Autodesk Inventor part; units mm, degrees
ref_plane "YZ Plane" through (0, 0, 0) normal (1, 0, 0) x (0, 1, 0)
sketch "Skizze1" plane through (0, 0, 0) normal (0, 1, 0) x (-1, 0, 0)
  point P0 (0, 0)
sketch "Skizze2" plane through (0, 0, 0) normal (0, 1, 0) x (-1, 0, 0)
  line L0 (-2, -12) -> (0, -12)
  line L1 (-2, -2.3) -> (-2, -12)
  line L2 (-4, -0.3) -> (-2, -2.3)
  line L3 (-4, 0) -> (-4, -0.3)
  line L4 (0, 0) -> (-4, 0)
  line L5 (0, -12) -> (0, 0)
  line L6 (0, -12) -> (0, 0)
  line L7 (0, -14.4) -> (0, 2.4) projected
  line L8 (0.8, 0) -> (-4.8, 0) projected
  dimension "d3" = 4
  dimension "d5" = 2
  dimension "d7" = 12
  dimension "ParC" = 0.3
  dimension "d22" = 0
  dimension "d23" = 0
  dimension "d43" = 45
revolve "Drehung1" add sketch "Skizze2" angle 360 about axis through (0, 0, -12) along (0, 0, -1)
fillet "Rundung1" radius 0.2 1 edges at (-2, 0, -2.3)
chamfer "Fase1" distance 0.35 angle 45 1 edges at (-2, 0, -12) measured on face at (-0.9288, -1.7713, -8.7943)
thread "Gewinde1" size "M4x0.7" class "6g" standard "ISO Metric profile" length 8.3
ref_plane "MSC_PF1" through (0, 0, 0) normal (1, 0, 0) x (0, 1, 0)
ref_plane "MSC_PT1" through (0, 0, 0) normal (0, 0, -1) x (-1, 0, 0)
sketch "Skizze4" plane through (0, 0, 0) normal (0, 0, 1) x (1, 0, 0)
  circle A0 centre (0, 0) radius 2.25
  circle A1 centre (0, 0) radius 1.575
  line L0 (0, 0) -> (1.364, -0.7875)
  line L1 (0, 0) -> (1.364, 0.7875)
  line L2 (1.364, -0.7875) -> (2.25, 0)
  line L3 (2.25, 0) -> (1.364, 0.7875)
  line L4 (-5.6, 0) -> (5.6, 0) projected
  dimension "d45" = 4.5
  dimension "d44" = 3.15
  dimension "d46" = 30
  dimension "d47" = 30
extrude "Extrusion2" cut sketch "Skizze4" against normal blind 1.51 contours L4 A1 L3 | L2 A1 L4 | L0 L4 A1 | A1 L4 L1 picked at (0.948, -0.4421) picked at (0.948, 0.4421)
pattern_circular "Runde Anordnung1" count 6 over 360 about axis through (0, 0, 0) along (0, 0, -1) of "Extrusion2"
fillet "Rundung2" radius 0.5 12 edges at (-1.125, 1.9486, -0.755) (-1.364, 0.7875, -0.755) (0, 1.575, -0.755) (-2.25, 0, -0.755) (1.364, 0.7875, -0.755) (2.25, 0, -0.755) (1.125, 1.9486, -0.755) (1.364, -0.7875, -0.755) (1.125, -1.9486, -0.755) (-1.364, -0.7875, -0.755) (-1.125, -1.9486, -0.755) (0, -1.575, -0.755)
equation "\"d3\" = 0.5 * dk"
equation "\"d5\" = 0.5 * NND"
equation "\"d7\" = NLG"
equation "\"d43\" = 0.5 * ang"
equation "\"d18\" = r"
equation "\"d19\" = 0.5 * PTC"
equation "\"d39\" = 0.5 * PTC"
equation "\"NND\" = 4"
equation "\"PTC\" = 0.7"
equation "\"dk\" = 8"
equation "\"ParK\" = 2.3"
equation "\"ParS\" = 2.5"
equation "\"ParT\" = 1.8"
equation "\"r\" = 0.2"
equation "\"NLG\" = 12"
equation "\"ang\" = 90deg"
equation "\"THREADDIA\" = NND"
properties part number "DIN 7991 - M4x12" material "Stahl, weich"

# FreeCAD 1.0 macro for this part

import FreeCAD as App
import Part
import Sketcher
from FreeCAD import Vector
Q = App.Units.Quantity


def edges_at(feature, points):
    """Names of the edges that pass closest to the given points."""
    edges = feature.Shape.Edges
    near = lambda p: min(range(len(edges)), key=lambda i: edges[i].distToShape(Part.Vertex(*p))[0])
    return sorted({f"Edge{near(p) + 1}" for p in points})

doc = App.newDocument("Part")
params = doc.addObject("Spreadsheet::Sheet", "Params")
for row, (alias, value) in enumerate([
    ("sketch1_width", "2 mm"),
    ("sketch1_width2", "4 mm"),
    ("sketch1_height", "12 mm"),
    ("sketch1_height2", "0.3 mm"),
    ("revolution_angle", "360 deg"),
    ("fillet_radius", "0.2 mm"),
    ("chamfer_size", "0.35 mm"),
    ("pocket1_length", "1.51 mm"),
    ("fillet2_radius", "0.5 mm"),
], start=1):
    params.set(f"A{row}", alias)
    params.set(f"B{row}", "=" + value)
    params.setAlias(f"B{row}", alias)

body = doc.addObject("PartDesign::Body", "Body")

# Sketch on XZ plane
sketch1 = body.newObject("Sketcher::SketchObject", "Sketch")
sketch1.AttachmentSupport = (doc.getObject("XZ_Plane"), [""])
sketch1.MapMode = "FlatFace"
sketch1.addGeometry(Part.LineSegment(Vector(2, -2.3, 0), Vector(2, -12, 0)), False)
sketch1.addGeometry(Part.LineSegment(Vector(2, -12, 0), Vector(0, -12, 0)), False)
sketch1.addGeometry(Part.LineSegment(Vector(0, -12, 0), Vector(0, 0, 0)), False)
sketch1.addGeometry(Part.LineSegment(Vector(0, 0, 0), Vector(4, 0, 0)), False)
sketch1.addGeometry(Part.LineSegment(Vector(4, 0, 0), Vector(4, -0.3, 0)), False)
sketch1.addGeometry(Part.LineSegment(Vector(4, -0.3, 0), Vector(2, -2.3, 0)), False)
sketch1.addConstraint(Sketcher.Constraint("Coincident", 0, 2, 1, 1))
sketch1.addConstraint(Sketcher.Constraint("Coincident", 1, 2, 2, 1))
sketch1.addConstraint(Sketcher.Constraint("Coincident", 2, 2, 3, 1))
sketch1.addConstraint(Sketcher.Constraint("Coincident", 3, 2, 4, 1))
sketch1.addConstraint(Sketcher.Constraint("Coincident", 4, 2, 5, 1))
sketch1.addConstraint(Sketcher.Constraint("Coincident", 5, 2, 0, 1))
sketch1.addConstraint(Sketcher.Constraint("Vertical", 0))
sketch1.addConstraint(Sketcher.Constraint("Horizontal", 1))
sketch1.addConstraint(Sketcher.Constraint("Vertical", 2))
sketch1.addConstraint(Sketcher.Constraint("Horizontal", 3))
sketch1.addConstraint(Sketcher.Constraint("Vertical", 4))
sketch1.addConstraint(Sketcher.Constraint("Coincident", 2, 2, -1, 1))
sketch1.addConstraint(Sketcher.Constraint("DistanceX", 1, 2, 1, 1, Q("2 mm")))
sketch1.addConstraint(Sketcher.Constraint("DistanceX", 3, 1, 3, 2, Q("4 mm")))
sketch1.addConstraint(Sketcher.Constraint("DistanceY", 2, 1, 2, 2, Q("12 mm")))
sketch1.addConstraint(Sketcher.Constraint("DistanceY", 4, 2, 4, 1, Q("0.3 mm")))
sketch1.addConstraint(Sketcher.Constraint("DistanceY", 5, 2, 4, 2, Q("2 mm")))
sketch1.setExpression("Constraints[12]", "Params.sketch1_width")
sketch1.setExpression("Constraints[13]", "Params.sketch1_width2")
sketch1.setExpression("Constraints[14]", "Params.sketch1_height")
sketch1.setExpression("Constraints[15]", "Params.sketch1_height2")
revolution = body.newObject("PartDesign::Revolution", "Revolution")
revolution.Profile = sketch1
revolution.ReferenceAxis = (sketch1, ["V_Axis"])
revolution.setExpression("Angle", "Params.revolution_angle")
doc.recompute()

fillet = body.newObject("PartDesign::Fillet", "Fillet")
fillet.Base = (revolution, edges_at(revolution, [(-2, 0, -2.3)]))
fillet.setExpression("Radius", "Params.fillet_radius")
doc.recompute()

chamfer = body.newObject("PartDesign::Chamfer", "Chamfer")
chamfer.Base = (fillet, edges_at(fillet, [(-2, 0, -12)]))
chamfer.setExpression("Size", "Params.chamfer_size")

# Sketch on XY plane
sketch2 = body.newObject("Sketcher::SketchObject", "Sketch001")
sketch2.AttachmentSupport = (doc.getObject("XY_Plane"), [""])
sketch2.MapMode = "FlatFace"
sketch2.addGeometry(Part.LineSegment(Vector(2.25, 0, 0), Vector(1.364, 0.7875, 0)), False)
sketch2.addGeometry(Part.LineSegment(Vector(1.364, 0.7875, 0), Vector(0, 0, 0)), False)
sketch2.addGeometry(Part.LineSegment(Vector(0, 0, 0), Vector(1.364, -0.7875, 0)), False)
sketch2.addGeometry(Part.LineSegment(Vector(1.364, -0.7875, 0), Vector(2.25, 0, 0)), False)
sketch2.addConstraint(Sketcher.Constraint("Coincident", 0, 2, 1, 1))
sketch2.addConstraint(Sketcher.Constraint("Coincident", 1, 2, 2, 1))
sketch2.addConstraint(Sketcher.Constraint("Coincident", 2, 2, 3, 1))
sketch2.addConstraint(Sketcher.Constraint("Coincident", 3, 2, 0, 1))
sketch2.addConstraint(Sketcher.Constraint("Coincident", 1, 2, -1, 1))
sketch2.addConstraint(Sketcher.Constraint("Symmetric", 0, 2, 2, 2, -1))
sketch2.addConstraint(Sketcher.Constraint("PointOnObject", 3, 2, -1))
sketch2.addConstraint(Sketcher.Constraint("Angle", 2, Q("-29.9998 deg")))
sketch2.addConstraint(Sketcher.Constraint("DistanceX", -1, 1, 3, 2, Q("2.25 mm")))
sketch2.addConstraint(Sketcher.Constraint("Distance", 1, Q("1.575 mm")))
pocket1 = body.newObject("PartDesign::Pocket", "Pocket")
pocket1.Profile = sketch2
pocket1.setExpression("Length", "Params.pocket1_length")
doc.recompute()

polarpattern = body.newObject("PartDesign::PolarPattern", "PolarPattern")
polarpattern.Originals = [pocket1]
polarpattern.Axis = (doc.getObject("Z_Axis"), [""])
polarpattern.Angle = 360
polarpattern.Occurrences = 6
body.Tip = polarpattern
doc.recompute()

fillet2 = body.newObject("PartDesign::Fillet", "Fillet001")
fillet2.Base = (polarpattern, edges_at(polarpattern, [
    (-1.125, 1.949, -0.755),
    (-1.364, 0.787, -0.755),
    (0, 1.575, -0.755),
    (-2.25, 0, -0.755),
    (1.364, 0.787, -0.755),
    (2.25, 0, -0.755),
    (1.125, 1.949, -0.755),
    (1.364, -0.787, -0.755),
    (1.125, -1.949, -0.755),
    (-1.364, -0.787, -0.755),
    (-1.125, -1.949, -0.755),
    (0, -1.575, -0.755),
]))
fillet2.setExpression("Radius", "Params.fillet2_radius")

doc.recompute()
